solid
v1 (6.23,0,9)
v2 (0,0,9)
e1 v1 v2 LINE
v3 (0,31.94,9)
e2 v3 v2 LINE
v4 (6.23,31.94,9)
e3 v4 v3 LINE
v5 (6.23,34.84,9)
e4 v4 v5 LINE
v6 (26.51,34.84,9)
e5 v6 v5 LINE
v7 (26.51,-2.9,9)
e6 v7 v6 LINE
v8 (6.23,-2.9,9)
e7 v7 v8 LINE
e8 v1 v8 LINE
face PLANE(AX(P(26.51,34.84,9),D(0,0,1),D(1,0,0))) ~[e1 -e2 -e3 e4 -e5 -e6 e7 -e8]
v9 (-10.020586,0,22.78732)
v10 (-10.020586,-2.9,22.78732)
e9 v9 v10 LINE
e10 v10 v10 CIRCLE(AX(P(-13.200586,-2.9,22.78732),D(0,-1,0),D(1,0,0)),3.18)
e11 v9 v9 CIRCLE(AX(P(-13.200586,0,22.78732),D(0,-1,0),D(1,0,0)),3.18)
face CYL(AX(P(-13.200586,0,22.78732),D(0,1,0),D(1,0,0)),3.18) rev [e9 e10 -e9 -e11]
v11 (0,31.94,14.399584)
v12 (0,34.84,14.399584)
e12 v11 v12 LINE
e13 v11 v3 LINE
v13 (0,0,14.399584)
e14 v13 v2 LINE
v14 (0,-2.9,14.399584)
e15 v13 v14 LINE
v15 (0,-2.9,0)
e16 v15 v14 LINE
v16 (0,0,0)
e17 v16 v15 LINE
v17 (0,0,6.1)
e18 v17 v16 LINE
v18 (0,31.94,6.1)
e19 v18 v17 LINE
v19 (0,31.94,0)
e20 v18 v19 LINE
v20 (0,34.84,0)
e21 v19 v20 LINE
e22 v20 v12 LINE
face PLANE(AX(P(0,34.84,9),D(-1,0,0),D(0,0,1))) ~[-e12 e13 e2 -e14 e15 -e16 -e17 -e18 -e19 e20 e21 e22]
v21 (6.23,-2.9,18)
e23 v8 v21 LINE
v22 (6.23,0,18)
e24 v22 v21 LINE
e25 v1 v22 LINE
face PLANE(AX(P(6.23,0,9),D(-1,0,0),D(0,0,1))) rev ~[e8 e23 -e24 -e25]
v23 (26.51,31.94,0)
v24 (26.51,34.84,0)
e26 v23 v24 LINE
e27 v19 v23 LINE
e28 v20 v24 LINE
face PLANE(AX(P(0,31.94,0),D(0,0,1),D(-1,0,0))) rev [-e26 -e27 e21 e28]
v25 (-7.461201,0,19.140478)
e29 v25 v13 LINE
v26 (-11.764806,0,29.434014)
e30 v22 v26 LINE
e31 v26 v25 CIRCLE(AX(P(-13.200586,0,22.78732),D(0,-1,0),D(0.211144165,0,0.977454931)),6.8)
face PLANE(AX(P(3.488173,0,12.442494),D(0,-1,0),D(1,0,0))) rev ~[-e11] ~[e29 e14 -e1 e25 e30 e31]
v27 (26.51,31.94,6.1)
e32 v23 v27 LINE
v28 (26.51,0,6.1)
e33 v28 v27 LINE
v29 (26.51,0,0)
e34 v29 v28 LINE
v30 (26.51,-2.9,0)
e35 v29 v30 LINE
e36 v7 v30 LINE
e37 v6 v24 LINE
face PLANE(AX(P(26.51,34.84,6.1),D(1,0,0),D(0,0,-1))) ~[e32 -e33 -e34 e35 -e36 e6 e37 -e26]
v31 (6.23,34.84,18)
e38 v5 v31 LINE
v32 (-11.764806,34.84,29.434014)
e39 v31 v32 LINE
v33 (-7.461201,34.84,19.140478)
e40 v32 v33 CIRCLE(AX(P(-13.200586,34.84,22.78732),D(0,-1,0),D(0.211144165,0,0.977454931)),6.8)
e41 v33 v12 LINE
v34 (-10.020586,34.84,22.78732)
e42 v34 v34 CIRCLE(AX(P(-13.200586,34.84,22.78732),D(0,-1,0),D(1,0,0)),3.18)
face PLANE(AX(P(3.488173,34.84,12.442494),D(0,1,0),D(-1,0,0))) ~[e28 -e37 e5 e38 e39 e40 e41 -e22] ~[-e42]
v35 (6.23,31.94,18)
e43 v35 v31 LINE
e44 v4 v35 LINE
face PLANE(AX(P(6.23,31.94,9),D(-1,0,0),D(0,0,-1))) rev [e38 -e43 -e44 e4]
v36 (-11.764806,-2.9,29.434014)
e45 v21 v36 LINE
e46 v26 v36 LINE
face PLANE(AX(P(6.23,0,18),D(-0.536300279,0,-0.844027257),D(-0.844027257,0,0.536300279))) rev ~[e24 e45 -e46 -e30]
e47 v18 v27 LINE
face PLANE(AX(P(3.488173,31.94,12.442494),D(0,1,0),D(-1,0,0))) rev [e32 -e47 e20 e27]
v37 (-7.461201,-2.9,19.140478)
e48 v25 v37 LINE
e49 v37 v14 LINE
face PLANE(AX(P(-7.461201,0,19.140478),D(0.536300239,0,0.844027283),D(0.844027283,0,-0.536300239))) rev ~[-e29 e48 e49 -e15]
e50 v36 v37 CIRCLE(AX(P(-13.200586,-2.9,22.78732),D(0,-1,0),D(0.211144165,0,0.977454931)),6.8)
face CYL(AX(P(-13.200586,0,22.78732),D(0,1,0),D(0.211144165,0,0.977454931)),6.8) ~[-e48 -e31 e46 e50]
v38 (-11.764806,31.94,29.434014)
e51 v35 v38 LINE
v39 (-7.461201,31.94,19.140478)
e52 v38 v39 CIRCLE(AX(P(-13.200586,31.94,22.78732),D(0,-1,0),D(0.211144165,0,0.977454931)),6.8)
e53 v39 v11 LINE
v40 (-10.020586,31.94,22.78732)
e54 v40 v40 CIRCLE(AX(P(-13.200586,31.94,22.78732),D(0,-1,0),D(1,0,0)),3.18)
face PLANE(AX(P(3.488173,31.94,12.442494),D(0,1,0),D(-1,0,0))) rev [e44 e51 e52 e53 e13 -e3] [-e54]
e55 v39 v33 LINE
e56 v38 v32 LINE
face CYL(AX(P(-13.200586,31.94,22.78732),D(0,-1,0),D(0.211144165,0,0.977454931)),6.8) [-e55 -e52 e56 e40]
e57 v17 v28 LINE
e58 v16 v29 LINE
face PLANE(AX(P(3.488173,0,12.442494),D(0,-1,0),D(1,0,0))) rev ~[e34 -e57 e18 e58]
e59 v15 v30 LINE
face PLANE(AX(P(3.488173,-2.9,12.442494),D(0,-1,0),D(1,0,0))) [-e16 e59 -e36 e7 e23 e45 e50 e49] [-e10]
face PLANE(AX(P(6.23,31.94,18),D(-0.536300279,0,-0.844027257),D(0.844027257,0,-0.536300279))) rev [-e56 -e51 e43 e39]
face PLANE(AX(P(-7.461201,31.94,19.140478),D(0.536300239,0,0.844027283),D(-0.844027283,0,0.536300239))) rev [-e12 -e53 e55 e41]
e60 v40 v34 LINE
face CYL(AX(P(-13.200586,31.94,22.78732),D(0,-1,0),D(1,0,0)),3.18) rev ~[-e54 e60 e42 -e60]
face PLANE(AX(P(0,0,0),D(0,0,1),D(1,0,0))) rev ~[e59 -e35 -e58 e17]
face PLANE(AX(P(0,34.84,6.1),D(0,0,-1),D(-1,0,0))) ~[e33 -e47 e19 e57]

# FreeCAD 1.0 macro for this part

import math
import FreeCAD as App
import Part
import Sketcher


def add_polygon(sketch, points):
    """Adds a closed chain of lines whose ends are joined by coincident constraints."""
    first, n = sketch.GeometryCount, len(points)
    for a, b in zip(points, points[1:] + points[:1]):
        sketch.addGeometry(Part.LineSegment(App.Vector(*a, 0), App.Vector(*b, 0)), False)
    for i in range(n):
        sketch.addConstraint(Sketcher.Constraint("Coincident", first + i, 2, first + (i + 1) % n, 1))

doc = App.newDocument("Part")
body = doc.addObject("PartDesign::Body", "Body")

# Sketch on XZ plane
sketch1 = doc.addObject("Sketcher::SketchObject", "Sketch")
body.addObject(sketch1)
sketch1.AttachmentSupport = (doc.XZ_Plane, [""])
sketch1.MapMode = "FlatFace"
sketch1.addGeometry([
    Part.LineSegment(App.Vector(0, 0, 0), App.Vector(26.5, 0, 0)),  # 0
    Part.LineSegment(App.Vector(26.5, 0, 0), App.Vector(26.5, 9, 0)),  # 1
    Part.LineSegment(App.Vector(26.5, 9, 0), App.Vector(6.2, 9, 0)),  # 2
    Part.LineSegment(App.Vector(6.2, 9, 0), App.Vector(6.2, 18, 0)),  # 3
    Part.LineSegment(App.Vector(6.2, 18, 0), App.Vector(-11.8, 29.4, 0)),  # 4
    Part.ArcOfCircle(Part.Circle(App.Vector(-13.2, 22.8, 0), App.Vector(0, 0, 1), 6.8), math.radians(78), math.radians(328)),  # 5
    Part.LineSegment(App.Vector(-7.5, 19.1, 0), App.Vector(0, 14.4, 0)),  # 6
    Part.LineSegment(App.Vector(0, 14.4, 0), App.Vector(0, 0, 0)),  # 7
    Part.Circle(App.Vector(-13.2, 22.8, 0), App.Vector(0, 0, 1), 3.2),  # 8
], False)
sketch1.addConstraint([
    Sketcher.Constraint("Coincident", 0, 2, 1, 1),
    Sketcher.Constraint("Coincident", 1, 2, 2, 1),
    Sketcher.Constraint("Coincident", 2, 2, 3, 1),
    Sketcher.Constraint("Coincident", 3, 2, 4, 1),
    Sketcher.Constraint("Coincident", 4, 2, 5, 1),
    Sketcher.Constraint("Coincident", 5, 2, 6, 1),
    Sketcher.Constraint("Coincident", 6, 2, 7, 1),
    Sketcher.Constraint("Coincident", 7, 2, 0, 1),
    Sketcher.Constraint("Horizontal", 0),
    Sketcher.Constraint("Vertical", 1),
    Sketcher.Constraint("Horizontal", 2),
    Sketcher.Constraint("Vertical", 3),
    Sketcher.Constraint("Vertical", 7),
    Sketcher.Constraint("Coincident", 7, 2, -1, 1),
    Sketcher.Constraint("Coincident", 8, 3, 5, 3),
    Sketcher.Constraint("Parallel", 4, 6),
    Sketcher.Constraint("Equal", 1, 3),
    Sketcher.Constraint("Radius", 5, 6.8),
    Sketcher.Constraint("Diameter", 8, 6.36),
    Sketcher.Constraint("DistanceY", 1, 1, 1, 2, 9.0),
    Sketcher.Constraint("DistanceX", 0, 1, 0, 2, 26.51),
    Sketcher.Constraint("DistanceX", 2, 2, 2, 1, 20.28),
    Sketcher.Constraint("Distance", 6, 8.84),
    Sketcher.Constraint("DistanceX", 5, 2, -1, 1, 7.461201),
    Sketcher.Constraint("Distance", 4, 21.320172),
    Sketcher.Constraint("DistanceY", 7, 2, 7, 1, 14.399584),
])
pad1 = doc.addObject("PartDesign::Pad", "Pad")
body.addObject(pad1)
pad1.Profile = sketch1
pad1.Length = 2.9

# Sketch on XZ plane
sketch2 = doc.addObject("Sketcher::SketchObject", "Sketch001")
body.addObject(sketch2)
sketch2.AttachmentSupport = (doc.XZ_Plane, [""])
sketch2.MapMode = "FlatFace"
sketch2.AttachmentOffset = App.Placement(App.Vector(0, 0, 2.9), App.Rotation())
add_polygon(sketch2, [(26.5, 9), (0, 9), (0, 6.1), (26.5, 6.1)])  # lines 0-3
sketch2.addConstraint([
    Sketcher.Constraint("Horizontal", 0),
    Sketcher.Constraint("Vertical", 1),
    Sketcher.Constraint("Horizontal", 2),
    Sketcher.Constraint("Vertical", 3),
    Sketcher.Constraint("PointOnObject", 0, 2, -2),
    Sketcher.Constraint("DistanceY", 1, 2, 1, 1, 2.9),
    Sketcher.Constraint("DistanceY", -1, 1, 0, 2, 9.0),
    Sketcher.Constraint("DistanceX", 0, 2, 0, 1, 26.51),
])
pad2 = doc.addObject("PartDesign::Pad", "Pad001")
body.addObject(pad2)
pad2.Profile = sketch2
pad2.Length = 18.87
pad2.Reversed = True
body2 = doc.addObject("PartDesign::Body", "Body001")
doc.recompute()

body2.BaseFeature = body
doc.recompute()

mirroring = doc.addObject("Part::Mirroring", "Mirroring")
mirroring.Source = body
mirroring.Base = App.Vector(0, 15.97, 0)
mirroring.Normal = App.Vector(0, -1, 0)
body3 = doc.addObject("PartDesign::Body", "Body002")
body3.BaseFeature = mirroring
boolean = doc.addObject("PartDesign::Boolean", "Boolean")
body2.addObject(boolean)
boolean.Type = "Fuse"
boolean.addObjects([body3])
doc.recompute()
mirroring.Visibility = False

doc.recompute()
